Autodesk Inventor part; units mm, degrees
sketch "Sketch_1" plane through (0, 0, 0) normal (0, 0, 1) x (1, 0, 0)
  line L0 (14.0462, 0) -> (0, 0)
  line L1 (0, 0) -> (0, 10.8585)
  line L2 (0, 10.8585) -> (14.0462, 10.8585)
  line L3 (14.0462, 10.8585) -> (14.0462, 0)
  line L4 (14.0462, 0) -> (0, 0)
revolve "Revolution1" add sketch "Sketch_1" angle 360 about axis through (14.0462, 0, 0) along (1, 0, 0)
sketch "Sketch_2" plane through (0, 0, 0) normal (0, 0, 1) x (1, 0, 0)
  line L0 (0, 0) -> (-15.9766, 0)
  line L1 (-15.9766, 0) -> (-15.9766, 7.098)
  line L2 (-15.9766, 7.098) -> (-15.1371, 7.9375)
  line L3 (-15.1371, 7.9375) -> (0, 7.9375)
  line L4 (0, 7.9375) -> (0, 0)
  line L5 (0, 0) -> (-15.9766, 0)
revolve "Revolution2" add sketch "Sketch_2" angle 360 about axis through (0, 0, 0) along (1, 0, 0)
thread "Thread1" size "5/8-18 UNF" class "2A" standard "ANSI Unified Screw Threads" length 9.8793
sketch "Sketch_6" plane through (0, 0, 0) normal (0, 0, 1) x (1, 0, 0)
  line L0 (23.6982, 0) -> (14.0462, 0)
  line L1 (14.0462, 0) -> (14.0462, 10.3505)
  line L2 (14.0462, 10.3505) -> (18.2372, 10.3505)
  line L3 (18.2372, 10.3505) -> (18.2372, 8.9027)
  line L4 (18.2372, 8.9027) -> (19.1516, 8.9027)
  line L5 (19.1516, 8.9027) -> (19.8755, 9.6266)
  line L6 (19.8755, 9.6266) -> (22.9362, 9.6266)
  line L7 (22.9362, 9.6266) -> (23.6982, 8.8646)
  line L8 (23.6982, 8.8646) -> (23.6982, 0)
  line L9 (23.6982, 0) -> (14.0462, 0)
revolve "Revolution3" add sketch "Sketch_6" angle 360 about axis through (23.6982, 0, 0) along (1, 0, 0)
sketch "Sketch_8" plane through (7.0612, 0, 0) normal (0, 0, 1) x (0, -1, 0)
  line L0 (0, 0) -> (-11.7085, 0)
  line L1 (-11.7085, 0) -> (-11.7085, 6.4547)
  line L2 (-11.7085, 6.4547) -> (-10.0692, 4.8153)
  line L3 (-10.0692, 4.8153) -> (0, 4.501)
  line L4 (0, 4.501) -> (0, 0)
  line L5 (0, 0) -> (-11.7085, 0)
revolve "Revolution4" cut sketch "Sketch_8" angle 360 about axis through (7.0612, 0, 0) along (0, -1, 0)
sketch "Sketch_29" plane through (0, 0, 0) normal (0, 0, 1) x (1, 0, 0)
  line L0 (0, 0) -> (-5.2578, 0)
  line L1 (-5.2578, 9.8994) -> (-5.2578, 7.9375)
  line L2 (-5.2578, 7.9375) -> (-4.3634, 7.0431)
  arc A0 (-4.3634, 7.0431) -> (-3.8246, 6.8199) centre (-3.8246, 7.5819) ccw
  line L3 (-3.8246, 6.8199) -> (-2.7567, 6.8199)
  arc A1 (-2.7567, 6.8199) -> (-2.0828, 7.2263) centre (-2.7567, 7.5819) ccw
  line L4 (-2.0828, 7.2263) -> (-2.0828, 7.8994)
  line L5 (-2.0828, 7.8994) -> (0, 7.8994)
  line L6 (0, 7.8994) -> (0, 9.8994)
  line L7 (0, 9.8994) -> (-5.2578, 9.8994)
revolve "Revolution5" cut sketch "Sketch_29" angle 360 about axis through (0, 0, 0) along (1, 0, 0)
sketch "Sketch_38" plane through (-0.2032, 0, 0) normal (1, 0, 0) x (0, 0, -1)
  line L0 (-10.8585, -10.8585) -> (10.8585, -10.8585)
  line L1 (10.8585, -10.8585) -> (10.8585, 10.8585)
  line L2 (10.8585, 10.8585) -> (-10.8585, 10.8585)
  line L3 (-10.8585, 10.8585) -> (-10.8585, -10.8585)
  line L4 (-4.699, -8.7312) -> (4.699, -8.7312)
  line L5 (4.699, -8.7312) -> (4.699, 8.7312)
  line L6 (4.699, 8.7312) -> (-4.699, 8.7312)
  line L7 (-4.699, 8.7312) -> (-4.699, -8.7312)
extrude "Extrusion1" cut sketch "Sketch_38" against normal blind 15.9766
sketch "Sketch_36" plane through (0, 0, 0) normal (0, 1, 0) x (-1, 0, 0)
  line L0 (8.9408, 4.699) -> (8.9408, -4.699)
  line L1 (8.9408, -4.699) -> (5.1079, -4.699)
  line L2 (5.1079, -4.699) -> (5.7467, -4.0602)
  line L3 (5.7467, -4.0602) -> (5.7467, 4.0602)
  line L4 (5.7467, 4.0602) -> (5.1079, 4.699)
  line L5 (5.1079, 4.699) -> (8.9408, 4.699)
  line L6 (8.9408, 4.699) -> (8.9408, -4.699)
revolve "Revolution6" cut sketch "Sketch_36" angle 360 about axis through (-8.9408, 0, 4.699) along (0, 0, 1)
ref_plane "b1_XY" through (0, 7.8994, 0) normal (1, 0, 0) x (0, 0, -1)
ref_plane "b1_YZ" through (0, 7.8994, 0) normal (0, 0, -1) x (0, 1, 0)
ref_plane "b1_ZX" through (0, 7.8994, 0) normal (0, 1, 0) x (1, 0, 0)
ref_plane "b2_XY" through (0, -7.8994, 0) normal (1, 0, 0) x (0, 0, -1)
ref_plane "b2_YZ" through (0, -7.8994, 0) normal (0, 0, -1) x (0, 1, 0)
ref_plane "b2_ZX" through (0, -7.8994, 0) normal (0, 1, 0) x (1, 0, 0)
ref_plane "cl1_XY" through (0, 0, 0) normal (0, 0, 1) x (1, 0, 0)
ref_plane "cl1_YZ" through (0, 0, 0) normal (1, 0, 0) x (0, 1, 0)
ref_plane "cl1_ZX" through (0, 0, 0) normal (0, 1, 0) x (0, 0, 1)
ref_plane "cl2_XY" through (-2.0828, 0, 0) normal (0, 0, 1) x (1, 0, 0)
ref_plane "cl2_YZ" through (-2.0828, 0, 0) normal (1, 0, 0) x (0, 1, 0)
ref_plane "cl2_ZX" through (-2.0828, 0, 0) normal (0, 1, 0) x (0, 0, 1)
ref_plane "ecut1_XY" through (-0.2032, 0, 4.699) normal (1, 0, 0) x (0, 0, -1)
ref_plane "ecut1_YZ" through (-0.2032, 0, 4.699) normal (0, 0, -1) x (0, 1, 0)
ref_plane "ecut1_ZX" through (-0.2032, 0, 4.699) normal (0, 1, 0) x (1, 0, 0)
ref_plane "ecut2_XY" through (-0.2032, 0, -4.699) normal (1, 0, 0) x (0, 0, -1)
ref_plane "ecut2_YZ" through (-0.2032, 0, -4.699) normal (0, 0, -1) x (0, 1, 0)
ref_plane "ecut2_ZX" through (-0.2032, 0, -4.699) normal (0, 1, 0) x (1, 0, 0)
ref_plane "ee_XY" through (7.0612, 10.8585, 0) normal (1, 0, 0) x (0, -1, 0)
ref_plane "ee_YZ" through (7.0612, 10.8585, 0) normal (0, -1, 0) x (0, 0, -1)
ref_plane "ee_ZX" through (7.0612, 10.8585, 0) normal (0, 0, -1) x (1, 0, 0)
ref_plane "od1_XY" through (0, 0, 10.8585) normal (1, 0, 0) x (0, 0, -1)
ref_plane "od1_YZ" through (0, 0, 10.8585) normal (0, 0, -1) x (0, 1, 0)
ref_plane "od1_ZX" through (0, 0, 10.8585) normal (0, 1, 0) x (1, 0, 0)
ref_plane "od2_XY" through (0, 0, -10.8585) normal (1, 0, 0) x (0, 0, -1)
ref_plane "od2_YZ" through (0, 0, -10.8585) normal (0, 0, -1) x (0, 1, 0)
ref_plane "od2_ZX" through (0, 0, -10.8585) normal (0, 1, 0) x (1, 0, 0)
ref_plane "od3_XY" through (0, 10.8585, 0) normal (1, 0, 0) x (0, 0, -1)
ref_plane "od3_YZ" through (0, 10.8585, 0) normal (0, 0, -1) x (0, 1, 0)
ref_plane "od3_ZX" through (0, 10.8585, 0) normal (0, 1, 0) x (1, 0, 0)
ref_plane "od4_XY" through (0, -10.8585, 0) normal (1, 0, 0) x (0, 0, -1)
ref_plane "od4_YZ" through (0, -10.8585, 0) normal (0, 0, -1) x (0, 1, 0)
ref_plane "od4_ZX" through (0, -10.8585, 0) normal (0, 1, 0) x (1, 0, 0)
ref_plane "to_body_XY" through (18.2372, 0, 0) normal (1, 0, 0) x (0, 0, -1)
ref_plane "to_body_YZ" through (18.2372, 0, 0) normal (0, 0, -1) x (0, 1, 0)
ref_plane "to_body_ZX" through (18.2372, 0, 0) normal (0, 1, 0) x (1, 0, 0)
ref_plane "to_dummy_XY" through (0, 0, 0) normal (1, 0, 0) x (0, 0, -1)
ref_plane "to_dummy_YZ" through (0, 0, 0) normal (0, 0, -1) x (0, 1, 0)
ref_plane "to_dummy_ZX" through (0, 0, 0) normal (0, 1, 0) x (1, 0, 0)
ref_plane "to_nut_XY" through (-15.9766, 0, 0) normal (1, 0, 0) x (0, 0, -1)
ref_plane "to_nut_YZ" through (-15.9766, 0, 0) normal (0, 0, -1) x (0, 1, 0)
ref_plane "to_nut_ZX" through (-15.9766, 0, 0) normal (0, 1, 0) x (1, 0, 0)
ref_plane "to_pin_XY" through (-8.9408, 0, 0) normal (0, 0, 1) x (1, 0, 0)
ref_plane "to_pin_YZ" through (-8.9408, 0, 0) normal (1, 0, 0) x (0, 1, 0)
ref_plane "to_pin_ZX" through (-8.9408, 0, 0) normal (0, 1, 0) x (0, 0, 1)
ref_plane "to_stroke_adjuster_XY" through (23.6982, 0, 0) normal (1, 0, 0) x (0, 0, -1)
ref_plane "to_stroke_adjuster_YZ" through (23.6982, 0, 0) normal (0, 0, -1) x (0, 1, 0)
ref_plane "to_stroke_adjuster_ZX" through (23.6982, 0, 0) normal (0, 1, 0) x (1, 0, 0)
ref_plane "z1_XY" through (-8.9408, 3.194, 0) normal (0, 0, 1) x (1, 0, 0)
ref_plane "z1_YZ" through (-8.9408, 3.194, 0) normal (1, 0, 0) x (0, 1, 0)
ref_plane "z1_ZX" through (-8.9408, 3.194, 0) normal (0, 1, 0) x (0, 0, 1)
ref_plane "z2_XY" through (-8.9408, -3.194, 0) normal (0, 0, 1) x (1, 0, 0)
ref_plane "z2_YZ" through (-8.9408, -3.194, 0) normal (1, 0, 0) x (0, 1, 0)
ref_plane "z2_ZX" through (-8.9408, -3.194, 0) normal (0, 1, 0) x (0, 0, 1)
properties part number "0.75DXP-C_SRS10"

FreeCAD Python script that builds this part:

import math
import FreeCAD as App
import Part
import Sketcher
Q = App.Units.Quantity

doc = App.newDocument("Part")
body = doc.addObject("PartDesign::Body", "Body")

# Sketch on XY plane
sketch1 = body.newObject("Sketcher::SketchObject", "Sketch")
sketch1.AttachmentSupport = (doc.getObject("XY_Plane"), [""])
sketch1.MapMode = "FlatFace"
sketch1.addGeometry([
    Part.LineSegment(App.Vector(0, 0, 0), App.Vector(14.0462, 0, 0)),
    Part.LineSegment(App.Vector(14.0462, 0, 0), App.Vector(14.0462, 10.8585, 0)),
    Part.LineSegment(App.Vector(14.0462, 10.8585, 0), App.Vector(0, 10.8585, 0)),
    Part.LineSegment(App.Vector(0, 10.8585, 0), App.Vector(0, 0, 0)),
], False)
sketch1.addConstraint([
    Sketcher.Constraint("Coincident", 0, 2, 1, 1),
    Sketcher.Constraint("Coincident", 1, 2, 2, 1),
    Sketcher.Constraint("Coincident", 2, 2, 3, 1),
    Sketcher.Constraint("Coincident", 3, 2, 0, 1),
    Sketcher.Constraint("Horizontal", 0),
    Sketcher.Constraint("Vertical", 1),
    Sketcher.Constraint("Horizontal", 2),
    Sketcher.Constraint("Vertical", 3),
    Sketcher.Constraint("Coincident", 3, 2, -1, 1),
    Sketcher.Constraint("DistanceX", 0, 1, 0, 2, Q("0.553 in")),
    Sketcher.Constraint("DistanceY", 1, 1, 1, 2, Q("0.4275 in")),
])
revolution = body.newObject("PartDesign::Revolution", "Revolution")
revolution.Profile = sketch1
revolution.ReferenceAxis = (sketch1, ["H_Axis"])
revolution.Angle = 360

# Sketch on XY plane
sketch2 = body.newObject("Sketcher::SketchObject", "Sketch001")
sketch2.AttachmentSupport = (doc.getObject("XY_Plane"), [""])
sketch2.MapMode = "FlatFace"
sketch2.addGeometry([
    Part.LineSegment(App.Vector(-15.9766, 0, 0), App.Vector(0, 0, 0)),  # 0
    Part.LineSegment(App.Vector(0, 0, 0), App.Vector(0, 7.9375, 0)),  # 1
    Part.LineSegment(App.Vector(0, 7.9375, 0), App.Vector(-15.1371, 7.9375, 0)),  # 2
    Part.LineSegment(App.Vector(-15.1371, 7.9375, 0), App.Vector(-15.9766, 7.098, 0)),  # 3
    Part.LineSegment(App.Vector(-15.9766, 7.098, 0), App.Vector(-15.9766, 0, 0)),  # 4
], False)
sketch2.addConstraint([
    Sketcher.Constraint("Coincident", 0, 2, 1, 1),
    Sketcher.Constraint("Coincident", 1, 2, 2, 1),
    Sketcher.Constraint("Coincident", 2, 2, 3, 1),
    Sketcher.Constraint("Coincident", 3, 2, 4, 1),
    Sketcher.Constraint("Coincident", 4, 2, 0, 1),
    Sketcher.Constraint("Horizontal", 0),
    Sketcher.Constraint("Vertical", 1),
    Sketcher.Constraint("Horizontal", 2),
    Sketcher.Constraint("Vertical", 4),
    Sketcher.Constraint("Coincident", 0, 2, -1, 1),
    Sketcher.Constraint("Angle", 3, Q("-135 deg")),
    Sketcher.Constraint("DistanceX", 0, 1, 0, 2, Q("0.629 in")),
    Sketcher.Constraint("DistanceY", 1, 1, 1, 2, Q("0.3125 in")),
    Sketcher.Constraint("DistanceX", 2, 2, 2, 1, Q("15.137 mm")),
])
revolution2 = body.newObject("PartDesign::Revolution", "Revolution001")
revolution2.Profile = sketch2
revolution2.ReferenceAxis = (sketch2, ["H_Axis"])
revolution2.Angle = 360

# Sketch on XY plane
sketch3 = body.newObject("Sketcher::SketchObject", "Sketch002")
sketch3.AttachmentSupport = (doc.getObject("XY_Plane"), [""])
sketch3.MapMode = "FlatFace"
sketch3.addGeometry([
    Part.LineSegment(App.Vector(14.0462, 0, 0), App.Vector(23.6982, 0, 0)),  # 0
    Part.LineSegment(App.Vector(23.6982, 0, 0), App.Vector(23.6982, 8.8646, 0)),  # 1
    Part.LineSegment(App.Vector(23.6982, 8.8646, 0), App.Vector(22.9362, 9.6266, 0)),  # 2
    Part.LineSegment(App.Vector(22.9362, 9.6266, 0), App.Vector(19.8755, 9.6266, 0)),  # 3
    Part.LineSegment(App.Vector(19.8755, 9.6266, 0), App.Vector(19.1516, 8.9027, 0)),  # 4
    Part.LineSegment(App.Vector(19.1516, 8.9027, 0), App.Vector(18.2372, 8.9027, 0)),  # 5
    Part.LineSegment(App.Vector(18.2372, 8.9027, 0), App.Vector(18.2372, 10.3505, 0)),  # 6
    Part.LineSegment(App.Vector(18.2372, 10.3505, 0), App.Vector(14.0462, 10.3505, 0)),  # 7
    Part.LineSegment(App.Vector(14.0462, 10.3505, 0), App.Vector(14.0462, 0, 0)),  # 8
], False)
sketch3.addConstraint([
    Sketcher.Constraint("Coincident", 0, 2, 1, 1),
    Sketcher.Constraint("Coincident", 1, 2, 2, 1),
    Sketcher.Constraint("Coincident", 2, 2, 3, 1),
    Sketcher.Constraint("Coincident", 3, 2, 4, 1),
    Sketcher.Constraint("Coincident", 4, 2, 5, 1),
    Sketcher.Constraint("Coincident", 5, 2, 6, 1),
    Sketcher.Constraint("Coincident", 6, 2, 7, 1),
    Sketcher.Constraint("Coincident", 7, 2, 8, 1),
    Sketcher.Constraint("Coincident", 8, 2, 0, 1),
    Sketcher.Constraint("Horizontal", 0),
    Sketcher.Constraint("Vertical", 1),
    Sketcher.Constraint("Horizontal", 3),
    Sketcher.Constraint("Horizontal", 5),
    Sketcher.Constraint("Vertical", 6),
    Sketcher.Constraint("Horizontal", 7),
    Sketcher.Constraint("Vertical", 8),
    Sketcher.Constraint("PointOnObject", 0, 2, -1),
    Sketcher.Constraint("Perpendicular", 2, 4),
    Sketcher.Constraint("Angle", 2, Q("135 deg")),
    Sketcher.Constraint("DistanceX", 0, 1, 0, 2, Q("0.38 in")),
    Sketcher.Constraint("DistanceX", 5, 2, 5, 1, Q("0.036 in")),
    Sketcher.Constraint("DistanceX", 7, 2, 7, 1, Q("0.165 in")),
    Sketcher.Constraint("DistanceY", 1, 1, 1, 2, Q("0.349 in")),
    Sketcher.Constraint("DistanceY", 6, 1, 6, 2, Q("0.057 in")),
    Sketcher.Constraint("DistanceX", 2, 2, 1, 2, Q("0.03 in")),
    Sketcher.Constraint("DistanceX", 3, 2, 3, 1, Q("0.1205 in")),
    Sketcher.Constraint("DistanceX", -1, 1, 0, 2, Q("0.933 in")),
])
revolution3 = body.newObject("PartDesign::Revolution", "Revolution002")
revolution3.Profile = sketch3
revolution3.ReferenceAxis = (sketch3, ["H_Axis"])
revolution3.Angle = 360

# Sketch on XY plane
sketch4 = body.newObject("Sketcher::SketchObject", "Sketch003")
sketch4.AttachmentSupport = (doc.getObject("XY_Plane"), [""])
sketch4.MapMode = "FlatFace"
sketch4.addGeometry([
    Part.LineSegment(App.Vector(7.0612, 11.7085, 0), App.Vector(7.0612, 0, 0)),  # 0
    Part.LineSegment(App.Vector(7.0612, 0, 0), App.Vector(11.5622, 0, 0)),  # 1
    Part.LineSegment(App.Vector(11.5622, 0, 0), App.Vector(11.8765, 10.0692, 0)),  # 2
    Part.LineSegment(App.Vector(11.8765, 10.0692, 0), App.Vector(13.5159, 11.7085, 0)),  # 3
    Part.LineSegment(App.Vector(13.5159, 11.7085, 0), App.Vector(7.0612, 11.7085, 0)),  # 4
], False)
sketch4.addGeometry(Part.LineSegment(App.Vector(7.0612, 11.7085, 0), App.Vector(7.0612, 0, 0)), True)  # axis
sketch4.addConstraint([
    Sketcher.Constraint("Coincident", 0, 2, 1, 1),
    Sketcher.Constraint("Coincident", 1, 2, 2, 1),
    Sketcher.Constraint("Coincident", 2, 2, 3, 1),
    Sketcher.Constraint("Coincident", 3, 2, 4, 1),
    Sketcher.Constraint("Coincident", 4, 2, 0, 1),
    Sketcher.Constraint("Vertical", 0),
    Sketcher.Constraint("Horizontal", 1),
    Sketcher.Constraint("Horizontal", 4),
    Sketcher.Constraint("Vertical", 5),
    Sketcher.Constraint("Coincident", 5, 1, 4, 2),
    Sketcher.Constraint("PointOnObject", 0, 2, -1),
    Sketcher.Constraint("PointOnObject", 5, 2, -1),
    Sketcher.Constraint("DistanceX", 1, 1, 1, 2, Q("0.1772 in")),
    Sketcher.Constraint("DistanceX", -1, 1, 0, 2, Q("0.278 in")),
    Sketcher.Constraint("DistanceX", 4, 2, 4, 1, Q("6.4547 mm")),
    Sketcher.Constraint("DistanceY", 0, 2, 0, 1, Q("11.7085 mm")),
    Sketcher.Constraint("Distance", 2, Q("10.074 mm")),
    Sketcher.Constraint("Distance", 3, Q("2.3184 mm")),
])
groove = body.newObject("PartDesign::Groove", "Groove")
groove.Profile = sketch4
groove.ReferenceAxis = (sketch4, ["Axis0"])
groove.Angle = 360

# Sketch on XY plane
sketch5 = body.newObject("Sketcher::SketchObject", "Sketch004")
sketch5.AttachmentSupport = (doc.getObject("XY_Plane"), [""])
sketch5.MapMode = "FlatFace"
sketch5.addGeometry([
    Part.LineSegment(App.Vector(0, 9.8994, 0), App.Vector(-5.2578, 9.8994, 0)),  # 0
    Part.LineSegment(App.Vector(-5.2578, 9.8994, 0), App.Vector(-5.2578, 7.9375, 0)),  # 1
    Part.LineSegment(App.Vector(-5.2578, 7.9375, 0), App.Vector(-4.3634, 7.0431, 0)),  # 2
    Part.ArcOfCircle(Part.Circle(App.Vector(-3.8246, 7.5819, 0), App.Vector(0, 0, 1), 0.761978), math.radians(-135), math.radians(-90)),  # 3
    Part.LineSegment(App.Vector(-3.8246, 6.8199, 0), App.Vector(-2.7567, 6.8199, 0)),  # 4
    Part.ArcOfCircle(Part.Circle(App.Vector(-2.7567, 7.5819, 0), App.Vector(0, 0, 1), 0.762), math.radians(-90), math.radians(-27.819478)),  # 5
    Part.LineSegment(App.Vector(-2.0828, 7.2263, 0), App.Vector(-2.0828, 7.8994, 0)),  # 6
    Part.LineSegment(App.Vector(-2.0828, 7.8994, 0), App.Vector(0, 7.8994, 0)),  # 7
    Part.LineSegment(App.Vector(0, 7.8994, 0), App.Vector(0, 9.8994, 0)),  # 8
], False)
sketch5.addConstraint([
    Sketcher.Constraint("Coincident", 0, 2, 1, 1),
    Sketcher.Constraint("Coincident", 1, 2, 2, 1),
    Sketcher.Constraint("Tangent", 2, 2, 3, 1),
    Sketcher.Constraint("Tangent", 3, 2, 4, 1),
    Sketcher.Constraint("Tangent", 4, 2, 5, 1),
    Sketcher.Constraint("Coincident", 5, 2, 6, 1),
    Sketcher.Constraint("Coincident", 6, 2, 7, 1),
    Sketcher.Constraint("Coincident", 7, 2, 8, 1),
    Sketcher.Constraint("Coincident", 8, 2, 0, 1),
    Sketcher.Constraint("Horizontal", 0),
    Sketcher.Constraint("Vertical", 1),
    Sketcher.Constraint("Horizontal", 4),
    Sketcher.Constraint("Vertical", 6),
    Sketcher.Constraint("Horizontal", 7),
    Sketcher.Constraint("Vertical", 8),
    Sketcher.Constraint("Equal", 3, 5),
    Sketcher.Constraint("PointOnObject", 7, 2, -2),
    Sketcher.Constraint("Radius", 3, Q("0.03 in")),
    Sketcher.Constraint("Angle", 2, Q("-45 deg")),
    Sketcher.Constraint("DistanceX", 0, 2, 0, 1, Q("0.207 in")),
    Sketcher.Constraint("DistanceX", 7, 1, 7, 2, Q("0.082 in")),
    Sketcher.Constraint("DistanceY", 6, 1, 6, 2, Q("0.0265 in")),
    Sketcher.Constraint("DistanceY", -1, 1, 1, 2, Q("0.3125 in")),
    Sketcher.Constraint("DistanceY", -1, 1, 6, 2, Q("0.311 in")),
    Sketcher.Constraint("DistanceY", 3, 3, 1, 2, Q("0.014 in")),
    Sketcher.Constraint("DistanceY", 1, 2, 1, 1, Q("1.962 mm")),
])
groove2 = body.newObject("PartDesign::Groove", "Groove001")
groove2.Profile = sketch5
groove2.ReferenceAxis = (sketch5, ["H_Axis"])
groove2.Angle = 360

# Sketch on YZ plane
sketch6 = body.newObject("Sketcher::SketchObject", "Sketch005")
sketch6.AttachmentSupport = (doc.getObject("YZ_Plane"), [""])
sketch6.MapMode = "FlatFace"
sketch6.AttachmentOffset = App.Placement(App.Vector(0, 0, -0.008 * 25.4), App.Rotation())
sketch6.addGeometry([
    Part.LineSegment(App.Vector(10.8585, 10.8585, 0), App.Vector(-10.8585, 10.8585, 0)),  # 0
    Part.LineSegment(App.Vector(-10.8585, 10.8585, 0), App.Vector(-10.8585, -10.8585, 0)),  # 1
    Part.LineSegment(App.Vector(-10.8585, -10.8585, 0), App.Vector(10.8585, -10.8585, 0)),  # 2
    Part.LineSegment(App.Vector(10.8585, -10.8585, 0), App.Vector(10.8585, 10.8585, 0)),  # 3
    Part.LineSegment(App.Vector(-8.7312, -4.699, 0), App.Vector(-8.7312, 4.699, 0)),  # 4
    Part.LineSegment(App.Vector(-8.7312, 4.699, 0), App.Vector(8.7312, 4.699, 0)),  # 5
    Part.LineSegment(App.Vector(8.7312, 4.699, 0), App.Vector(8.7312, -4.699, 0)),  # 6
    Part.LineSegment(App.Vector(8.7312, -4.699, 0), App.Vector(-8.7312, -4.699, 0)),  # 7
], False)
sketch6.addConstraint([
    Sketcher.Constraint("Coincident", 0, 2, 1, 1),
    Sketcher.Constraint("Coincident", 1, 2, 2, 1),
    Sketcher.Constraint("Coincident", 2, 2, 3, 1),
    Sketcher.Constraint("Coincident", 3, 2, 0, 1),
    Sketcher.Constraint("Coincident", 4, 2, 5, 1),
    Sketcher.Constraint("Coincident", 5, 2, 6, 1),
    Sketcher.Constraint("Coincident", 6, 2, 7, 1),
    Sketcher.Constraint("Coincident", 7, 2, 4, 1),
    Sketcher.Constraint("Horizontal", 0),
    Sketcher.Constraint("Vertical", 1),
    Sketcher.Constraint("Horizontal", 2),
    Sketcher.Constraint("Vertical", 3),
    Sketcher.Constraint("Vertical", 4),
    Sketcher.Constraint("Horizontal", 5),
    Sketcher.Constraint("Vertical", 6),
    Sketcher.Constraint("Horizontal", 7),
    Sketcher.Constraint("Symmetric", 0, 2, 2, 2, -1, 1),
    Sketcher.Constraint("Symmetric", 4, 2, 6, 2, -1, 1),
    Sketcher.Constraint("Equal", 2, 1),
    Sketcher.Constraint("DistanceY", 4, 1, 4, 2, Q("0.37 in")),
    Sketcher.Constraint("DistanceX", 0, 2, 0, 1, Q("0.855 in")),
    Sketcher.Constraint("DistanceX", 5, 1, 5, 2, Q("0.6875 in")),
])
pocket1 = body.newObject("PartDesign::Pocket", "Pocket")
pocket1.Profile = sketch6
pocket1.Length = Q("0.629 in")

# Sketch on XZ plane
sketch7 = body.newObject("Sketcher::SketchObject", "Sketch006")
sketch7.AttachmentSupport = (doc.getObject("XZ_Plane"), [""])
sketch7.MapMode = "FlatFace"
sketch7.addGeometry([
    Part.LineSegment(App.Vector(-8.9408, -4.699, 0), App.Vector(-8.9408, 4.699, 0)),  # 0
    Part.LineSegment(App.Vector(-8.9408, 4.699, 0), App.Vector(-5.1079, 4.699, 0)),  # 1
    Part.LineSegment(App.Vector(-5.1079, 4.699, 0), App.Vector(-5.7467, 4.0602, 0)),  # 2
    Part.LineSegment(App.Vector(-5.7467, 4.0602, 0), App.Vector(-5.7467, -4.0602, 0)),  # 3
    Part.LineSegment(App.Vector(-5.7467, -4.0602, 0), App.Vector(-5.1079, -4.699, 0)),  # 4
    Part.LineSegment(App.Vector(-5.1079, -4.699, 0), App.Vector(-8.9408, -4.699, 0)),  # 5
], False)
sketch7.addGeometry(Part.LineSegment(App.Vector(-8.9408, -4.699, 0), App.Vector(-8.9408, 4.699, 0)), True)  # axis
sketch7.addConstraint([
    Sketcher.Constraint("Coincident", 0, 2, 1, 1),
    Sketcher.Constraint("Coincident", 1, 2, 2, 1),
    Sketcher.Constraint("Coincident", 2, 2, 3, 1),
    Sketcher.Constraint("Coincident", 3, 2, 4, 1),
    Sketcher.Constraint("Coincident", 4, 2, 5, 1),
    Sketcher.Constraint("Coincident", 5, 2, 0, 1),
    Sketcher.Constraint("Vertical", 0),
    Sketcher.Constraint("Horizontal", 1),
    Sketcher.Constraint("Vertical", 3),
    Sketcher.Constraint("Horizontal", 5),
    Sketcher.Constraint("Vertical", 6),
    Sketcher.Constraint("Coincident", 6, 1, 5, 2),
    Sketcher.Constraint("Symmetric", 1, 2, 4, 2, -1),
    Sketcher.Constraint("Perpendicular", 2, 4),
    Sketcher.Constraint("Horizontal", 1, 2, 6, 2),
    Sketcher.Constraint("Equal", 2, 4),
    Sketcher.Constraint("DistanceY", 0, 1, 0, 2, Q("0.37 in")),
    Sketcher.Constraint("DistanceX", 1, 1, 1, 2, Q("0.1509 in")),
    Sketcher.Constraint("DistanceY", 3, 2, 3, 1, Q("0.3197 in")),
    Sketcher.Constraint("DistanceX", 0, 2, -1, 1, Q("0.352 in")),
])
groove3 = body.newObject("PartDesign::Groove", "Groove002")
groove3.Profile = sketch7
groove3.ReferenceAxis = (sketch7, ["Axis0"])
groove3.Angle = 360

doc.recompute()
